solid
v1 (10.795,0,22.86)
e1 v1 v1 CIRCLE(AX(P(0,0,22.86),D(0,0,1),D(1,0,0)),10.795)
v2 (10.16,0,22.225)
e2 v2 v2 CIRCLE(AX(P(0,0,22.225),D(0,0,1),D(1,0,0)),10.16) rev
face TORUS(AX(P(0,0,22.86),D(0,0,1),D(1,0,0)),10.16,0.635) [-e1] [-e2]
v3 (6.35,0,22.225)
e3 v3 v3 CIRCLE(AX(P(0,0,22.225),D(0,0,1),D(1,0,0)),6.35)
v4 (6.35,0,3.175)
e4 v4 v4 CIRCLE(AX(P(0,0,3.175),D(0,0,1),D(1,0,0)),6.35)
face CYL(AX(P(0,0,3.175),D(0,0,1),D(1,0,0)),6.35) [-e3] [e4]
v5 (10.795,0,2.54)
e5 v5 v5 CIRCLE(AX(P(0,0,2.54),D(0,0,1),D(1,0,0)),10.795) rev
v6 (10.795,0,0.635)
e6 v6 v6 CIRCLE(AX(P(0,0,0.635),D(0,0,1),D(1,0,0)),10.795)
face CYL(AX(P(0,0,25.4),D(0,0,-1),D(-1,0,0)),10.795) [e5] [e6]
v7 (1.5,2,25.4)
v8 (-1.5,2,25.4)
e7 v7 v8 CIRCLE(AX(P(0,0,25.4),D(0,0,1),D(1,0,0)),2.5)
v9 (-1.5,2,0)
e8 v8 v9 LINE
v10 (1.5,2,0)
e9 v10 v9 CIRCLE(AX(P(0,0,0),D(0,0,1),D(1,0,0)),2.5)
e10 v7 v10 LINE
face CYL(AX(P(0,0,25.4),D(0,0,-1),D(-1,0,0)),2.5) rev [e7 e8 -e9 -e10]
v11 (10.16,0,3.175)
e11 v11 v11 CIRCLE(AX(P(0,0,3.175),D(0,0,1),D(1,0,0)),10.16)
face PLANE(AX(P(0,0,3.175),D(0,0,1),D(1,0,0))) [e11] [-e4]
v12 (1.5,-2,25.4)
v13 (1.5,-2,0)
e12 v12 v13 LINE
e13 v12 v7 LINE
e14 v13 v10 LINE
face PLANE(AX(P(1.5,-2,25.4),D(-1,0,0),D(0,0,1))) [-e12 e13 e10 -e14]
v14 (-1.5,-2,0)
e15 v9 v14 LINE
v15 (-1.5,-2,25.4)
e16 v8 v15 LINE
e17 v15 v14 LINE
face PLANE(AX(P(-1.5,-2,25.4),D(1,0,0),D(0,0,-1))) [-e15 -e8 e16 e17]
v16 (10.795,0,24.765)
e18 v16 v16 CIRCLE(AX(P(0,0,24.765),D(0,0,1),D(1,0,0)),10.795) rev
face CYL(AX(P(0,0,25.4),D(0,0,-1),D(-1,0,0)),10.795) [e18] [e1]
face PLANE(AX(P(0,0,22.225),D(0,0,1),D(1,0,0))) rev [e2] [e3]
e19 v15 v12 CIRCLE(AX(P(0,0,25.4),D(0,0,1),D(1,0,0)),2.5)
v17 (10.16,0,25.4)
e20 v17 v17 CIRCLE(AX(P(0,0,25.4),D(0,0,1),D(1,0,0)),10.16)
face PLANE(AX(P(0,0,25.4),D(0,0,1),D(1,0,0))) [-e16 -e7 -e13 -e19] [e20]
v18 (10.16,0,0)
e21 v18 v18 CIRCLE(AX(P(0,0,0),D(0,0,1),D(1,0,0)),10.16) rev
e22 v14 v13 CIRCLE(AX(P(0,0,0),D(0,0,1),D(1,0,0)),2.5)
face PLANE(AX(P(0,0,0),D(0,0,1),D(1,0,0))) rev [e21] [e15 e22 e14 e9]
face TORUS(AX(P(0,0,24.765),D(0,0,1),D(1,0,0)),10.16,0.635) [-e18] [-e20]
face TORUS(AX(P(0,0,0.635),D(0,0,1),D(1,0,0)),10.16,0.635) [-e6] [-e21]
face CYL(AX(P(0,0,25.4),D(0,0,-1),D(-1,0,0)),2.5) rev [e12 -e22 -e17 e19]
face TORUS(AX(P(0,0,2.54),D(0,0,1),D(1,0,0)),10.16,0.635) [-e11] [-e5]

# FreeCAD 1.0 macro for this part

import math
import FreeCAD as App
import Part
import Sketcher
from FreeCAD import Vector
Q = App.Units.Quantity


def edges_at(feature, points):
    """Names of the edges that pass closest to the given points."""
    edges = feature.Shape.Edges
    near = lambda p: min(range(len(edges)), key=lambda i: edges[i].distToShape(Part.Vertex(*p))[0])
    return sorted({f"Edge{near(p) + 1}" for p in points})

doc = App.newDocument("Part")
body = doc.addObject("PartDesign::Body", "Body")

# Sketch on XY plane
sketch1 = body.newObject("Sketcher::SketchObject", "Sketch")
sketch1.AttachmentSupport = (doc.getObject("XY_Plane"), [""])
sketch1.MapMode = "FlatFace"
sketch1.addGeometry([
    Part.Circle(Vector(0, 0, 0), Vector(0, 0, 1), 10.8),  # 0
    Part.LineSegment(Vector(1.5, 2, 0), Vector(1.5, -2, 0)),  # 1
    Part.ArcOfCircle(Part.Circle(Vector(0, 0, 0), Vector(0, 0, 1), 2.5), math.radians(-127), math.radians(-53)),  # 2
    Part.LineSegment(Vector(-1.5, -2, 0), Vector(-1.5, 2, 0)),  # 3
    Part.ArcOfCircle(Part.Circle(Vector(0, 0, 0), Vector(0, 0, 1), 2.5), math.radians(53), math.radians(127)),  # 4
], False)
sketch1.addConstraint([
    Sketcher.Constraint("Coincident", 1, 2, 2, 2),
    Sketcher.Constraint("Coincident", 2, 1, 3, 1),
    Sketcher.Constraint("Coincident", 3, 2, 4, 2),
    Sketcher.Constraint("Coincident", 4, 1, 1, 1),
    Sketcher.Constraint("Vertical", 1),
    Sketcher.Constraint("Vertical", 3),
    Sketcher.Constraint("Coincident", 0, 3, -1, 1),
    Sketcher.Constraint("Coincident", 2, 3, -1, 1),
    Sketcher.Constraint("Coincident", 4, 3, -1, 1),
    Sketcher.Constraint("Equal", 2, 4),
    Sketcher.Constraint("Horizontal", 1, 2, 2, 1),
    Sketcher.Constraint("Diameter", 0, Q("0.85 in")),
    Sketcher.Constraint("Radius", 2, 2.5),
    Sketcher.Constraint("DistanceY", 1, 2, 1, 1, 4.0),
])
pad1 = body.newObject("PartDesign::Pad", "Pad")
pad1.Profile = sketch1
pad1.Length = Q("1 in")

# Sketch on XY plane
sketch2 = body.newObject("Sketcher::SketchObject", "Sketch001")
sketch2.AttachmentSupport = (doc.getObject("XY_Plane"), [""])
sketch2.MapMode = "FlatFace"
sketch2.AttachmentOffset = App.Placement(Vector(0, 0, 0.5 * 25.4), App.Rotation())
sketch2.addGeometry([
    Part.Circle(Vector(0, 0, 0), Vector(0, 0, 1), 11),
    Part.Circle(Vector(0, 0, 0), Vector(0, 0, 1), 6),
], False)
sketch2.addConstraint([
    Sketcher.Constraint("Coincident", 0, 3, -1, 1),
    Sketcher.Constraint("Coincident", 1, 3, -1, 1),
    Sketcher.Constraint("Diameter", 1, Q("0.5 in")),
    Sketcher.Constraint("Diameter", 0, Q("0.85 in")),
])
pocket1 = body.newObject("PartDesign::Pocket", "Pocket")
pocket1.Profile = sketch2
pocket1.Length = Q("0.75 in")
pocket1.Midplane = True
doc.recompute()

fillet = body.newObject("PartDesign::Fillet", "Fillet")
fillet.Base = (pocket1, edges_at(pocket1, [
    (-10.795, 0, 0),
    (-10.795, 0, 3.175),
    (-10.795, 0, 22.225),
    (-10.795, 0, 25.4),
]))
fillet.Radius = Q("0.025 in")

doc.recompute()
